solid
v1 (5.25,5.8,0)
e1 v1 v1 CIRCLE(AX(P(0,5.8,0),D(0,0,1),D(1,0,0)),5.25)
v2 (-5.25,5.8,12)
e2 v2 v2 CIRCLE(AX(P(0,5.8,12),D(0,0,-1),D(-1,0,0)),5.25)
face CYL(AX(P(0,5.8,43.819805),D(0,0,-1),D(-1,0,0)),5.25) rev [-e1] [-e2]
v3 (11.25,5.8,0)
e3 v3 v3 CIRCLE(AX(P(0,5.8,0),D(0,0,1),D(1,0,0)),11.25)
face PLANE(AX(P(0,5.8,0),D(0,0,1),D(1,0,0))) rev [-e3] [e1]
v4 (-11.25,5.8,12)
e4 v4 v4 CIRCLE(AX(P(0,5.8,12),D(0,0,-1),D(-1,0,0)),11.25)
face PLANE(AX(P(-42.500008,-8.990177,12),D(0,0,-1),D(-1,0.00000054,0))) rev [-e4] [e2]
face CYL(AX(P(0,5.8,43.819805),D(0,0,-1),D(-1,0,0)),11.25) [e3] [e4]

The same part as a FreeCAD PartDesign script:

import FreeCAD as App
import Part
import Sketcher
Q = App.Units.Quantity

doc = App.newDocument("Part")
body = doc.addObject("PartDesign::Body", "Body")

sketch1 = doc.addObject("Sketcher::SketchObject", "Sketch")
body.addObject(sketch1)
sketch1.AttachmentSupport = (doc.XY_Plane, [""])
sketch1.MapMode = "FlatFace"
sketch1.addGeometry(Part.Circle(App.Vector(0, 5.8, 0), App.Vector(0, 0, 1), 11.25), False)
sketch1.addGeometry(Part.Circle(App.Vector(0, 5.8, 0), App.Vector(0, 0, 1), 5.25), False)
sketch1.addConstraint(Sketcher.Constraint("Coincident", 1, 3, 0, 3))
sketch1.addConstraint(Sketcher.Constraint("PointOnObject", 0, 3, -2))
sketch1.addConstraint(Sketcher.Constraint("Diameter", 0, Q("22.5 mm")))
sketch1.addConstraint(Sketcher.Constraint("Diameter", 1, Q("10.5 mm")))
sketch1.addConstraint(Sketcher.Constraint("DistanceY", -1, 1, 0, 3, Q("5.8 mm")))
pad1 = doc.addObject("PartDesign::Pad", "Pad")
body.addObject(pad1)
pad1.Profile = sketch1
pad1.Length = 12

doc.recompute()
